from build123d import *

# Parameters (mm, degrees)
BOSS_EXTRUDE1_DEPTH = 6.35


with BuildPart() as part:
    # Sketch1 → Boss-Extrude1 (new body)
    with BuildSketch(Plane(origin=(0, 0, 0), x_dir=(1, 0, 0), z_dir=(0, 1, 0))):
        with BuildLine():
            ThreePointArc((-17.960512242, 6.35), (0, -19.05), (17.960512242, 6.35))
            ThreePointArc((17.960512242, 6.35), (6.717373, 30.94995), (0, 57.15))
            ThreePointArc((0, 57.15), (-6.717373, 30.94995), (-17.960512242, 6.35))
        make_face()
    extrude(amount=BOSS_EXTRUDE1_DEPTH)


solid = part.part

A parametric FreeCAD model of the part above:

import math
import FreeCAD as App
import Part
import Sketcher
Q = App.Units.Quantity

doc = App.newDocument("Part")
params = doc.addObject("Spreadsheet::Sheet", "Params")
for row, (alias, value) in enumerate([
    ("sketch1_radius", "6 in"),
    ("sketch1_radius2", "0.75 in"),
    ("pad1_length", "0.25 in"),
], start=1):
    params.set(f"A{row}", alias)
    params.set(f"B{row}", "=" + value)
    params.setAlias(f"B{row}", alias)

body = doc.addObject("PartDesign::Body", "Body")

sketch1 = body.newObject("Sketcher::SketchObject", "Sketch")
sketch1.AttachmentSupport = (doc.getObject("XZ_Plane"), [""])
sketch1.MapMode = "FlatFace"
sketch1.addGeometry([
    Part.ArcOfCircle(Part.Circle(App.Vector(0, 0, 0), App.Vector(0, 0, 1), 19.05), math.radians(-19.471221), math.radians(199.471221)),
    Part.ArcOfCircle(Part.Circle(App.Vector(150.401471, -81.74995, 0), App.Vector(0, 0, 1), 152.4), math.radians(150.346712), math.radians(170.710847)),
    Part.ArcOfCircle(Part.Circle(App.Vector(-150.401471, -81.74995, 0), App.Vector(0, 0, 1), 152.4), math.radians(9.289153), math.radians(29.653288)),
], False)
sketch1.addConstraint([
    Sketcher.Constraint("Coincident", 0, 1, 1, 1),
    Sketcher.Constraint("Coincident", 1, 2, 2, 1),
    Sketcher.Constraint("Coincident", 2, 2, 0, 2),
    Sketcher.Constraint("Coincident", 0, 3, -1, 1),
    Sketcher.Constraint("Equal", 1, 2),
    Sketcher.Constraint("Symmetric", 1, 3, 2, 3, -2),
    Sketcher.Constraint("Radius", 1, Q("6 in")),
    Sketcher.Constraint("Radius", 0, Q("0.75 in")),
    Sketcher.Constraint("DistanceY", 1, 2, 0, 1, Q("2 in")),
    Sketcher.Constraint("DistanceY", 0, 1, -1, 1, Q("0.25 in")),
])
sketch1.setExpression("Constraints[6]", "Params.sketch1_radius")
sketch1.setExpression("Constraints[7]", "Params.sketch1_radius2")
pad1 = body.newObject("PartDesign::Pad", "Pad")
pad1.Profile = sketch1
pad1.setExpression("Length", "Params.pad1_length")
pad1.Reversed = True

doc.recompute()
